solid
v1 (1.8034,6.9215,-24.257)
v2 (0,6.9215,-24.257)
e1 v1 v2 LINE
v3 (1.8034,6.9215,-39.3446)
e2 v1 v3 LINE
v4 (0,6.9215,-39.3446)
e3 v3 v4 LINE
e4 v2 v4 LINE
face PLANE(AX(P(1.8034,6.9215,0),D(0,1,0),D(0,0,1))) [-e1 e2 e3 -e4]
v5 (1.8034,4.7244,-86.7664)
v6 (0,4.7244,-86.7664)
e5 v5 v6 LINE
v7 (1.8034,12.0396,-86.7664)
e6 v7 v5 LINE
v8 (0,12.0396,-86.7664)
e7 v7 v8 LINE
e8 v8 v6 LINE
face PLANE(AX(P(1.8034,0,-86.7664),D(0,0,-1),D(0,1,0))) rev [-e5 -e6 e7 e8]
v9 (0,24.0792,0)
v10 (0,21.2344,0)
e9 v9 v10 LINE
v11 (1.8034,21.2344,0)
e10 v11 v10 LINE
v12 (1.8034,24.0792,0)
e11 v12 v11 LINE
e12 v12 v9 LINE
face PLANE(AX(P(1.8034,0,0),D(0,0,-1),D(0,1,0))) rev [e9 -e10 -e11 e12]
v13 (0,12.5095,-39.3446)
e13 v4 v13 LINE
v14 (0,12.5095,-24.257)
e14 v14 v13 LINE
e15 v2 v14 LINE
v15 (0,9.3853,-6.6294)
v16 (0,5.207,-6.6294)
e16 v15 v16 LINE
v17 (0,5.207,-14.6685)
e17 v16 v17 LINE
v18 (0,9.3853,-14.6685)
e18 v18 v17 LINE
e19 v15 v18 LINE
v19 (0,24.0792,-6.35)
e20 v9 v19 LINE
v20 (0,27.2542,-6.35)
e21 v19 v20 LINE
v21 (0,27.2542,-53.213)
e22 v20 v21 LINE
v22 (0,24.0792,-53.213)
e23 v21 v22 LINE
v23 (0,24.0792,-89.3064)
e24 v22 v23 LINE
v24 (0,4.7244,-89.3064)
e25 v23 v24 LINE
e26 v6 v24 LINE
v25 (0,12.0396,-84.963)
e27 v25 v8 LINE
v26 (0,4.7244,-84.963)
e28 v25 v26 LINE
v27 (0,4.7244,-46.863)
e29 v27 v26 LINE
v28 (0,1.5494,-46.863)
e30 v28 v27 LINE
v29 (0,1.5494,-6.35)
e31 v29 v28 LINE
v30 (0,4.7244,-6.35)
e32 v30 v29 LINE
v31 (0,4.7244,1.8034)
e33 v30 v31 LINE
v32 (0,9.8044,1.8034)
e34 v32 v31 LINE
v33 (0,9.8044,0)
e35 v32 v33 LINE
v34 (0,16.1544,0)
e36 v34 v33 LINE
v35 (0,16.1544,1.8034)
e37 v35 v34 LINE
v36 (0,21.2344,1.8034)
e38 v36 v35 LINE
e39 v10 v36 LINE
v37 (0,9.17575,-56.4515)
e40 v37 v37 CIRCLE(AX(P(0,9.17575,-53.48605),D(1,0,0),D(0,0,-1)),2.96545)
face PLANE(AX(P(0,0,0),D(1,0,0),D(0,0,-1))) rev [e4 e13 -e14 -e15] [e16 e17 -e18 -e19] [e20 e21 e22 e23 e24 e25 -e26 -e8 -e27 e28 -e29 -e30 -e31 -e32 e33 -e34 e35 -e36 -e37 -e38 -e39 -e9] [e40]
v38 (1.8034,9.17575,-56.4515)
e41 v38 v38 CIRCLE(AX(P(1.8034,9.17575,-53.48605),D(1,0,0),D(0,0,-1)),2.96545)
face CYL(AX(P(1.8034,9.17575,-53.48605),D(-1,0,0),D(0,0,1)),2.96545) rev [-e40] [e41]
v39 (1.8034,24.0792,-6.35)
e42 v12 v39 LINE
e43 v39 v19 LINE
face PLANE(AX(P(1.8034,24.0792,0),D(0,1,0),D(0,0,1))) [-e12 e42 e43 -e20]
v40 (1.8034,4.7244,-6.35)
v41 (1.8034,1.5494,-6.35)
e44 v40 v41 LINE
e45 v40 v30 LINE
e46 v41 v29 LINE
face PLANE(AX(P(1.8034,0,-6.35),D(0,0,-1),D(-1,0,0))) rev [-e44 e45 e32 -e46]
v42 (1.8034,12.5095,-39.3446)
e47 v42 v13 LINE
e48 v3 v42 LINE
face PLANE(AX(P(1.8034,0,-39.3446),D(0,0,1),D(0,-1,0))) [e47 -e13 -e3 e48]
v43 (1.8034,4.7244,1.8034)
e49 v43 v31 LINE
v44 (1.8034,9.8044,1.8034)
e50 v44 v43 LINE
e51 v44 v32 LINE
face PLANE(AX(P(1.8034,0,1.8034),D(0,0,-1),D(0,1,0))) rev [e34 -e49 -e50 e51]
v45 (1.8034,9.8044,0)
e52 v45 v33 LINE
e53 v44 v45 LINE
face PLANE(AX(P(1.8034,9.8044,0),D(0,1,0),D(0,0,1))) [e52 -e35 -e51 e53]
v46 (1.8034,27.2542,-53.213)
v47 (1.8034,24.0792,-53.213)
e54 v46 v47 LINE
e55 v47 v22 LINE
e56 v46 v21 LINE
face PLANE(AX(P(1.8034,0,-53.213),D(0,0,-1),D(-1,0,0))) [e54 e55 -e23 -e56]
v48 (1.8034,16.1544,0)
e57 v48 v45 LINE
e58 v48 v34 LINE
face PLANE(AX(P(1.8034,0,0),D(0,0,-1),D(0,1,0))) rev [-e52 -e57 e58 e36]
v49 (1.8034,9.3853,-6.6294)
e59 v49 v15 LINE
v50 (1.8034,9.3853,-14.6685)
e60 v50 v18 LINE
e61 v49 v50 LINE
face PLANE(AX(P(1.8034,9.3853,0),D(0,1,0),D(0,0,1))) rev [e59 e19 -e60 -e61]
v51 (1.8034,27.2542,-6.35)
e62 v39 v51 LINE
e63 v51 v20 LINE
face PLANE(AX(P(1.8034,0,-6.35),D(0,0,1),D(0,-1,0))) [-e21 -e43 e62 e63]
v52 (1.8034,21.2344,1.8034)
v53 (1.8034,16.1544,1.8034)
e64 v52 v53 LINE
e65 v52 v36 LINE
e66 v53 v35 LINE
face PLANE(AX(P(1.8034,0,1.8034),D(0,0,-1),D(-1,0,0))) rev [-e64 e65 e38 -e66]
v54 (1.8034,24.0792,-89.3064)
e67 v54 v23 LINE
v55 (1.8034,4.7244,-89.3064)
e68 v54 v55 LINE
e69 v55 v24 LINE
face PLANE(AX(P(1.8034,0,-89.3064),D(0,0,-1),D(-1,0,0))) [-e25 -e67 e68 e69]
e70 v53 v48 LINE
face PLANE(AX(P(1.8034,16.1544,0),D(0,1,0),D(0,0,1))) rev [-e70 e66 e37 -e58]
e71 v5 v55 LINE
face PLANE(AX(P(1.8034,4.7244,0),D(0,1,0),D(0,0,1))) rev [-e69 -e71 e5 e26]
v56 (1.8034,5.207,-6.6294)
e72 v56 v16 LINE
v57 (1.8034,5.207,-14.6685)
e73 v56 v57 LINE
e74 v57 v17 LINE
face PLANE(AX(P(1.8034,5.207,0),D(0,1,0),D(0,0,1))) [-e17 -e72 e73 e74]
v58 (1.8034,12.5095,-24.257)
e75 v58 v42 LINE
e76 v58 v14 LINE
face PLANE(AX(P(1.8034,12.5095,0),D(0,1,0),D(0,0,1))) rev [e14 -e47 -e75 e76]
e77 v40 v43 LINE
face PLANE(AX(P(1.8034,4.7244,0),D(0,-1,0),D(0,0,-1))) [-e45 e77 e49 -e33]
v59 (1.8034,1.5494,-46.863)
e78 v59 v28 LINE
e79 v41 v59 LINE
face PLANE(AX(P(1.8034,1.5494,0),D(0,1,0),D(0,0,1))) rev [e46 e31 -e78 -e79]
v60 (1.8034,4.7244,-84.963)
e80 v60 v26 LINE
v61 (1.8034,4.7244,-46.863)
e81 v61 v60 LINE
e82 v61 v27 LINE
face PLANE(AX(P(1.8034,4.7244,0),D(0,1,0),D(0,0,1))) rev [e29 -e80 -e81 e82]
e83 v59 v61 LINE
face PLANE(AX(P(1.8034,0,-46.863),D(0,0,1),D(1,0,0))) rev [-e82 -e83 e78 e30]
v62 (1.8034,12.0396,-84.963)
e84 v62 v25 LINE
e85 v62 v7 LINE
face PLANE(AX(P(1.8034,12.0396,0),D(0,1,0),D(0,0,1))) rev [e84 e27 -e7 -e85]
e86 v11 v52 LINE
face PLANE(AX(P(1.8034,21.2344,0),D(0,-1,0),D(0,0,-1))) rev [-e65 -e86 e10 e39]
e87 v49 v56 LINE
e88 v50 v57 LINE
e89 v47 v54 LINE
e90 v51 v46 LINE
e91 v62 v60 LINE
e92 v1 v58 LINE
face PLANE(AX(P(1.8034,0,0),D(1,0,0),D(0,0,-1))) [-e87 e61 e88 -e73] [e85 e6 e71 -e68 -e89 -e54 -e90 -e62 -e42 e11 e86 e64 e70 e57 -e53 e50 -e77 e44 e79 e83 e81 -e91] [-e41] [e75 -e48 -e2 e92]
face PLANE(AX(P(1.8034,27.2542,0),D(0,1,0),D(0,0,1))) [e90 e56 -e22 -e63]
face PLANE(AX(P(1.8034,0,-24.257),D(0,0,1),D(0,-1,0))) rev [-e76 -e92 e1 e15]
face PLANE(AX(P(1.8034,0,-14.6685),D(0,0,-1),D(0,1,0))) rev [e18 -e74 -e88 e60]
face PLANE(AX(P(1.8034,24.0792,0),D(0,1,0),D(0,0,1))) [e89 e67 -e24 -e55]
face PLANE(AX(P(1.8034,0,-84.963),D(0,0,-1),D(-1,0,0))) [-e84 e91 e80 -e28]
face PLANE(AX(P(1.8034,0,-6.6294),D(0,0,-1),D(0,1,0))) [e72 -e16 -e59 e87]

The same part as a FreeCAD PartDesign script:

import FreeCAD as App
import Part
import Sketcher
Q = App.Units.Quantity

doc = App.newDocument("Part")
body = doc.addObject("PartDesign::Body", "Body")

# Sketch on YZ plane
sketch1 = body.newObject("Sketcher::SketchObject", "Sketch")
sketch1.AttachmentSupport = (doc.getObject("YZ_Plane"), [""])
sketch1.MapMode = "FlatFace"
sketch1.addGeometry([
    Part.LineSegment(App.Vector(24.1, -6.3, 0), App.Vector(24.1, 0, 0)),  # 0
    Part.LineSegment(App.Vector(24.1, 0, 0), App.Vector(21.2, 0, 0)),  # 1
    Part.LineSegment(App.Vector(21.2, 0, 0), App.Vector(21.2, 1.8, 0)),  # 2
    Part.LineSegment(App.Vector(21.2, 1.8, 0), App.Vector(16.2, 1.8, 0)),  # 3
    Part.LineSegment(App.Vector(16.2, 1.8, 0), App.Vector(16.2, 0, 0)),  # 4
    Part.LineSegment(App.Vector(16.2, 0, 0), App.Vector(9.8, 0, 0)),  # 5
    Part.LineSegment(App.Vector(9.8, 0, 0), App.Vector(9.8, 1.8, 0)),  # 6
    Part.LineSegment(App.Vector(9.8, 1.8, 0), App.Vector(4.7, 1.8, 0)),  # 7
    Part.LineSegment(App.Vector(4.7, 1.8, 0), App.Vector(4.7, -6.3, 0)),  # 8
    Part.LineSegment(App.Vector(4.7, -6.3, 0), App.Vector(1.5, -6.3, 0)),  # 9
    Part.LineSegment(App.Vector(1.5, -6.3, 0), App.Vector(1.5, -46.9, 0)),  # 10
    Part.LineSegment(App.Vector(1.5, -46.9, 0), App.Vector(4.7, -46.9, 0)),  # 11
    Part.LineSegment(App.Vector(4.7, -46.9, 0), App.Vector(4.7, -85, 0)),  # 12
    Part.LineSegment(App.Vector(4.7, -85, 0), App.Vector(12, -85, 0)),  # 13
    Part.LineSegment(App.Vector(12, -85, 0), App.Vector(12, -86.8, 0)),  # 14
    Part.LineSegment(App.Vector(12, -86.8, 0), App.Vector(4.7, -86.8, 0)),  # 15
    Part.LineSegment(App.Vector(4.7, -86.8, 0), App.Vector(4.7, -89.3, 0)),  # 16
    Part.LineSegment(App.Vector(4.7, -89.3, 0), App.Vector(24.1, -89.3, 0)),  # 17
    Part.LineSegment(App.Vector(24.1, -89.3, 0), App.Vector(24.1, -53.2, 0)),  # 18
    Part.LineSegment(App.Vector(24.1, -53.2, 0), App.Vector(27.3, -53.2, 0)),  # 19
    Part.LineSegment(App.Vector(27.3, -53.2, 0), App.Vector(27.3, -6.3, 0)),  # 20
    Part.LineSegment(App.Vector(27.3, -6.3, 0), App.Vector(24.1, -6.3, 0)),  # 21
    Part.LineSegment(App.Vector(5.2, -14.7, 0), App.Vector(5.2, -6.6, 0)),  # 22
    Part.LineSegment(App.Vector(5.2, -6.6, 0), App.Vector(9.4, -6.6, 0)),  # 23
    Part.LineSegment(App.Vector(9.4, -6.6, 0), App.Vector(9.4, -14.7, 0)),  # 24
    Part.LineSegment(App.Vector(9.4, -14.7, 0), App.Vector(5.2, -14.7, 0)),  # 25
    Part.LineSegment(App.Vector(6.9, -39.3, 0), App.Vector(6.9, -24.3, 0)),  # 26
    Part.LineSegment(App.Vector(6.9, -24.3, 0), App.Vector(12.5, -24.3, 0)),  # 27
    Part.LineSegment(App.Vector(12.5, -24.3, 0), App.Vector(12.5, -39.3, 0)),  # 28
    Part.LineSegment(App.Vector(12.5, -39.3, 0), App.Vector(6.9, -39.3, 0)),  # 29
    Part.Circle(App.Vector(9.2, -53.5, 0), App.Vector(0, 0, 1), 3),  # 30
], False)
sketch1.addConstraint([
    Sketcher.Constraint("Coincident", 0, 2, 1, 1),
    Sketcher.Constraint("Coincident", 1, 2, 2, 1),
    Sketcher.Constraint("Coincident", 2, 2, 3, 1),
    Sketcher.Constraint("Coincident", 3, 2, 4, 1),
    Sketcher.Constraint("Coincident", 4, 2, 5, 1),
    Sketcher.Constraint("Coincident", 5, 2, 6, 1),
    Sketcher.Constraint("Coincident", 6, 2, 7, 1),
    Sketcher.Constraint("Coincident", 7, 2, 8, 1),
    Sketcher.Constraint("Coincident", 8, 2, 9, 1),
    Sketcher.Constraint("Coincident", 9, 2, 10, 1),
    Sketcher.Constraint("Coincident", 10, 2, 11, 1),
    Sketcher.Constraint("Coincident", 11, 2, 12, 1),
    Sketcher.Constraint("Coincident", 12, 2, 13, 1),
    Sketcher.Constraint("Coincident", 13, 2, 14, 1),
    Sketcher.Constraint("Coincident", 14, 2, 15, 1),
    Sketcher.Constraint("Coincident", 15, 2, 16, 1),
    Sketcher.Constraint("Coincident", 16, 2, 17, 1),
    Sketcher.Constraint("Coincident", 17, 2, 18, 1),
    Sketcher.Constraint("Coincident", 18, 2, 19, 1),
    Sketcher.Constraint("Coincident", 19, 2, 20, 1),
    Sketcher.Constraint("Coincident", 20, 2, 21, 1),
    Sketcher.Constraint("Coincident", 21, 2, 0, 1),
    Sketcher.Constraint("Coincident", 22, 2, 23, 1),
    Sketcher.Constraint("Coincident", 23, 2, 24, 1),
    Sketcher.Constraint("Coincident", 24, 2, 25, 1),
    Sketcher.Constraint("Coincident", 25, 2, 22, 1),
    Sketcher.Constraint("Coincident", 26, 2, 27, 1),
    Sketcher.Constraint("Coincident", 27, 2, 28, 1),
    Sketcher.Constraint("Coincident", 28, 2, 29, 1),
    Sketcher.Constraint("Coincident", 29, 2, 26, 1),
    Sketcher.Constraint("Vertical", 0),
    Sketcher.Constraint("Horizontal", 1),
    Sketcher.Constraint("Vertical", 2),
    Sketcher.Constraint("Horizontal", 3),
    Sketcher.Constraint("Vertical", 4),
    Sketcher.Constraint("Horizontal", 5),
    Sketcher.Constraint("Vertical", 6),
    Sketcher.Constraint("Horizontal", 7),
    Sketcher.Constraint("Vertical", 8),
    Sketcher.Constraint("Horizontal", 9),
    Sketcher.Constraint("Vertical", 10),
    Sketcher.Constraint("Horizontal", 11),
    Sketcher.Constraint("Vertical", 12),
    Sketcher.Constraint("Horizontal", 13),
    Sketcher.Constraint("Vertical", 14),
    Sketcher.Constraint("Horizontal", 15),
    Sketcher.Constraint("Vertical", 16),
    Sketcher.Constraint("Horizontal", 17),
    Sketcher.Constraint("Vertical", 18),
    Sketcher.Constraint("Horizontal", 19),
    Sketcher.Constraint("Vertical", 20),
    Sketcher.Constraint("Horizontal", 21),
    Sketcher.Constraint("Vertical", 22),
    Sketcher.Constraint("Horizontal", 23),
    Sketcher.Constraint("Vertical", 24),
    Sketcher.Constraint("Horizontal", 25),
    Sketcher.Constraint("Vertical", 26),
    Sketcher.Constraint("Horizontal", 27),
    Sketcher.Constraint("Vertical", 28),
    Sketcher.Constraint("Horizontal", 29),
    Sketcher.Constraint("PointOnObject", 0, 2, -1),
    Sketcher.Constraint("PointOnObject", 4, 2, -1),
    Sketcher.Constraint("Horizontal", 3, 2, 6, 2),
    Sketcher.Constraint("Horizontal", 9, 2, 20, 2),
    Sketcher.Constraint("Vertical", 8, 2, 11, 2),
    Sketcher.Constraint("Vertical", 12, 2, 15, 2),
    Sketcher.Constraint("Vertical", 0, 2, 17, 2),
    Sketcher.Constraint("Equal", 3, 7),
    Sketcher.Constraint("Equal", 11, 19),
    Sketcher.Constraint("Equal", 5, 0),
    Sketcher.Constraint("Equal", 6, 14),
    Sketcher.Constraint("DistanceX", 3, 2, 3, 1, Q("0.2 in")),
    Sketcher.Constraint("DistanceY", 12, 2, 12, 1, Q("1.5 in")),
    Sketcher.Constraint("DistanceY", 16, 2, 16, 1, Q("0.1 in")),
    Sketcher.Constraint("Diameter", 30, Q("0.2335 in")),
    Sketcher.Constraint("DistanceX", 5, 2, 5, 1, Q("0.25 in")),
    Sketcher.Constraint("DistanceX", 27, 1, 27, 2, Q("0.22 in")),
    Sketcher.Constraint("DistanceX", 1, 2, 1, 1, Q("0.112 in")),
    Sketcher.Constraint("DistanceX", 9, 2, 9, 1, Q("0.125 in")),
    Sketcher.Constraint("DistanceX", 13, 1, 13, 2, Q("0.288 in")),
    Sketcher.Constraint("DistanceY", 2, 1, 2, 2, Q("0.071 in")),
    Sketcher.Constraint("DistanceY", 10, 2, 10, 1, Q("1.595 in")),
    Sketcher.Constraint("DistanceY", 18, 1, 18, 2, Q("1.421 in")),
    Sketcher.Constraint("DistanceY", 26, 1, 26, 2, Q("0.594 in")),
    Sketcher.Constraint("DistanceX", 23, 1, 23, 2, Q("0.1645 in")),
    Sketcher.Constraint("DistanceY", 22, 1, 22, 2, Q("0.3165 in")),
    Sketcher.Constraint("DistanceX", -1, 1, 0, 2, Q("0.948 in")),
    Sketcher.Constraint("DistanceX", -1, 1, 22, 2, Q("0.205 in")),
    Sketcher.Constraint("DistanceY", 22, 2, -1, 1, Q("0.261 in")),
    Sketcher.Constraint("DistanceY", 26, 2, -1, 1, Q("0.955 in")),
    Sketcher.Constraint("DistanceX", 26, 2, 24, 2, Q("0.097 in")),
    Sketcher.Constraint("DistanceX", -1, 1, 30, 3, Q("9.17575 mm")),
    Sketcher.Constraint("DistanceY", 30, 3, -1, 1, Q("53.48605 mm")),
])
pad1 = body.newObject("PartDesign::Pad", "Pad")
pad1.Profile = sketch1
pad1.Length = Q("0.071 in")

doc.recompute()
